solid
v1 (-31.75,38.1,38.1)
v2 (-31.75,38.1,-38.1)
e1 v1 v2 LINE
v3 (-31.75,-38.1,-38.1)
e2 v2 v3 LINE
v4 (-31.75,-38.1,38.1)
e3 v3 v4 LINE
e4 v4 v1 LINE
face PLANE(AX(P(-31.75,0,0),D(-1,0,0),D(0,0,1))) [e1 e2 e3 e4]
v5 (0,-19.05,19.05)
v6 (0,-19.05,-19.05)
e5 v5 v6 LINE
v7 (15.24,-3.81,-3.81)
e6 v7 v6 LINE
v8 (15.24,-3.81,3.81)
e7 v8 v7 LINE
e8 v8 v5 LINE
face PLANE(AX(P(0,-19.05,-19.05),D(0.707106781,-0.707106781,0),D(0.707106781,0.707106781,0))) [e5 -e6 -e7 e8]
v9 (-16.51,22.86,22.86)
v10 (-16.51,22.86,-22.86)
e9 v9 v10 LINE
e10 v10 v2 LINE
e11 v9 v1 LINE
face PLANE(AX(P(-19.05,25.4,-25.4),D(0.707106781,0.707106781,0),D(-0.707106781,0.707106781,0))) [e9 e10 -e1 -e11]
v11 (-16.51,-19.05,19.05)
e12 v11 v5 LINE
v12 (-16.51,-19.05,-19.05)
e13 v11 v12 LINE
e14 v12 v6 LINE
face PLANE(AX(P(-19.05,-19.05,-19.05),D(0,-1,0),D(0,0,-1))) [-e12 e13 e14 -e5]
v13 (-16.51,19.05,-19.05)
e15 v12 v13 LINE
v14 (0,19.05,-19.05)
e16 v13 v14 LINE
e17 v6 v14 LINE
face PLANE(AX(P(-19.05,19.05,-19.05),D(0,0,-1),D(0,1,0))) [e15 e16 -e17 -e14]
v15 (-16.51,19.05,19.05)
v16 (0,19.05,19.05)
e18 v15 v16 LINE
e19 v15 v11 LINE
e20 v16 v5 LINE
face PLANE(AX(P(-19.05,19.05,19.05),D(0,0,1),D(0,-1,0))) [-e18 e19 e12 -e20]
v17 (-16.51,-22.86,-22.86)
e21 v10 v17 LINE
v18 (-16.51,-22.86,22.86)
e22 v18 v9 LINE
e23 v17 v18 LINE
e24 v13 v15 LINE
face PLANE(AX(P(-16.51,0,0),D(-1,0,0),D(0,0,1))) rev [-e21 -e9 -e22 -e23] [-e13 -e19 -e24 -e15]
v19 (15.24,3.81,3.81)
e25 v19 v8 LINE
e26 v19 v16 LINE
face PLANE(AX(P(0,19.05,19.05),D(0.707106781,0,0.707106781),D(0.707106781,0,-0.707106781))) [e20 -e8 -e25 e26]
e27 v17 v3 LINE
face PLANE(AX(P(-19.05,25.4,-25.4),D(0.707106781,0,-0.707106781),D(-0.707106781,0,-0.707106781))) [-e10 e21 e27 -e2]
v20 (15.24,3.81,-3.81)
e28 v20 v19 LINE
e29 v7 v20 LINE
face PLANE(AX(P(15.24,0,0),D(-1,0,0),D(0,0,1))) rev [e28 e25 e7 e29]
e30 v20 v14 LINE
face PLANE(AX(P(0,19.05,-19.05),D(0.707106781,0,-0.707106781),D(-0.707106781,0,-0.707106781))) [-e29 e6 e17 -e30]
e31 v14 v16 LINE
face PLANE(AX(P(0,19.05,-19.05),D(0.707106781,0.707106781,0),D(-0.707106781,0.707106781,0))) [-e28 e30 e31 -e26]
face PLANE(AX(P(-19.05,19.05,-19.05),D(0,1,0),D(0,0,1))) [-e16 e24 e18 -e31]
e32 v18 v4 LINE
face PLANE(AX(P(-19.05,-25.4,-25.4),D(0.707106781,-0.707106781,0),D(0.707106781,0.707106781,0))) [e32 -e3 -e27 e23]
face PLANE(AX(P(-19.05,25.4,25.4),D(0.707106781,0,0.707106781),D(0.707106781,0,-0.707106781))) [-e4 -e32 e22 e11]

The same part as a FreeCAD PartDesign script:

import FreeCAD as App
import Part
import Sketcher
Q = App.Units.Quantity


def add_polygon(sketch, points):
    """Adds a closed chain of lines whose ends are joined by coincident constraints."""
    first, n = sketch.GeometryCount, len(points)
    for a, b in zip(points, points[1:] + points[:1]):
        sketch.addGeometry(Part.LineSegment(App.Vector(*a, 0), App.Vector(*b, 0)), False)
    for i in range(n):
        sketch.addConstraint(Sketcher.Constraint("Coincident", first + i, 2, first + (i + 1) % n, 1))

doc = App.newDocument("Part")
params = doc.addObject("Spreadsheet::Sheet", "Params")
for row, (alias, value) in enumerate([
    ("sketch1_width", "1.5 in"),
    ("pad1_length", "0.6 in"),
    ("pad1_taper", "-45 deg"),
    ("sketch2_width", "1.5 in"),
    ("pad2_length", "0.75 in"),
    ("sketch3_width", "2 in"),
    ("pad3_length", "0.5 in"),
    ("pad3_taper", "45 deg"),
    ("sketch4_width", "2 in"),
    ("pad4_length", "0.1 in"),
    ("pad4_taper", "-45 deg"),
], start=1):
    params.set(f"A{row}", alias)
    params.set(f"B{row}", "=" + value)
    params.setAlias(f"B{row}", alias)

body = doc.addObject("PartDesign::Body", "Body")

# Sketch on YZ plane
sketch1 = body.newObject("Sketcher::SketchObject", "Sketch")
sketch1.AttachmentSupport = (doc.getObject("YZ_Plane"), [""])
sketch1.MapMode = "FlatFace"
add_polygon(sketch1, [(19, 19), (-19, 19), (-19, -19), (19, -19)])  # lines 0-3
sketch1.addConstraint([
    Sketcher.Constraint("Horizontal", 0),
    Sketcher.Constraint("Vertical", 1),
    Sketcher.Constraint("Horizontal", 2),
    Sketcher.Constraint("Vertical", 3),
    Sketcher.Constraint("Symmetric", 0, 2, 2, 2, -1, 1),
    Sketcher.Constraint("Equal", 2, 1),
    Sketcher.Constraint("DistanceX", 0, 2, 0, 1, Q("1.5 in")),
])
sketch1.setExpression("Constraints[10]", "Params.sketch1_width")
pad1 = body.newObject("PartDesign::Pad", "Pad")
pad1.Profile = sketch1
pad1.setExpression("Length", "Params.pad1_length")
pad1.setExpression("TaperAngle", "Params.pad1_taper")

# Sketch on YZ plane
sketch2 = body.newObject("Sketcher::SketchObject", "Sketch001")
sketch2.AttachmentSupport = (doc.getObject("YZ_Plane"), [""])
sketch2.MapMode = "FlatFace"
add_polygon(sketch2, [(19, 19), (-19, 19), (-19, -19), (19, -19)])  # lines 0-3
sketch2.addConstraint([
    Sketcher.Constraint("Horizontal", 0),
    Sketcher.Constraint("Vertical", 1),
    Sketcher.Constraint("Horizontal", 2),
    Sketcher.Constraint("Vertical", 3),
    Sketcher.Constraint("Symmetric", 0, 2, 2, 2, -1, 1),
    Sketcher.Constraint("Equal", 2, 1),
    Sketcher.Constraint("DistanceX", 0, 2, 0, 1, Q("1.5 in")),
])
sketch2.setExpression("Constraints[10]", "Params.sketch2_width")
pad2 = body.newObject("PartDesign::Pad", "Pad001")
pad2.Profile = sketch2
pad2.setExpression("Length", "Params.pad2_length")
pad2.Reversed = True

# Sketch on YZ plane
sketch3 = body.newObject("Sketcher::SketchObject", "Sketch002")
sketch3.AttachmentSupport = (doc.getObject("YZ_Plane"), [""])
sketch3.MapMode = "FlatFace"
sketch3.AttachmentOffset = App.Placement(App.Vector(0, 0, -0.75 * 25.4), App.Rotation())
add_polygon(sketch3, [(25, -25), (-25, -25), (-25, 25), (25, 25)])  # lines 0-3
sketch3.addConstraint([
    Sketcher.Constraint("Horizontal", 0),
    Sketcher.Constraint("Vertical", 1),
    Sketcher.Constraint("Horizontal", 2),
    Sketcher.Constraint("Vertical", 3),
    Sketcher.Constraint("Symmetric", 0, 2, 2, 2, -1, 1),
    Sketcher.Constraint("Equal", 2, 1),
    Sketcher.Constraint("DistanceX", 0, 2, 0, 1, Q("2 in")),
])
sketch3.setExpression("Constraints[10]", "Params.sketch3_width")
pad3 = body.newObject("PartDesign::Pad", "Pad002")
pad3.Profile = sketch3
pad3.setExpression("Length", "Params.pad3_length")
pad3.Reversed = True
pad3.setExpression("TaperAngle", "Params.pad3_taper")

# Sketch on YZ plane
sketch4 = body.newObject("Sketcher::SketchObject", "Sketch003")
sketch4.AttachmentSupport = (doc.getObject("YZ_Plane"), [""])
sketch4.MapMode = "FlatFace"
sketch4.AttachmentOffset = App.Placement(App.Vector(0, 0, -0.75 * 25.4), App.Rotation())
add_polygon(sketch4, [(25, -25), (-25, -25), (-25, 25), (25, 25)])  # lines 0-3
sketch4.addConstraint([
    Sketcher.Constraint("Horizontal", 0),
    Sketcher.Constraint("Vertical", 1),
    Sketcher.Constraint("Horizontal", 2),
    Sketcher.Constraint("Vertical", 3),
    Sketcher.Constraint("Symmetric", 0, 2, 2, 2, -1, 1),
    Sketcher.Constraint("Equal", 2, 1),
    Sketcher.Constraint("DistanceX", 0, 2, 0, 1, Q("2 in")),
])
sketch4.setExpression("Constraints[10]", "Params.sketch4_width")
pad4 = body.newObject("PartDesign::Pad", "Pad003")
pad4.Profile = sketch4
pad4.setExpression("Length", "Params.pad4_length")
pad4.setExpression("TaperAngle", "Params.pad4_taper")

doc.recompute()
